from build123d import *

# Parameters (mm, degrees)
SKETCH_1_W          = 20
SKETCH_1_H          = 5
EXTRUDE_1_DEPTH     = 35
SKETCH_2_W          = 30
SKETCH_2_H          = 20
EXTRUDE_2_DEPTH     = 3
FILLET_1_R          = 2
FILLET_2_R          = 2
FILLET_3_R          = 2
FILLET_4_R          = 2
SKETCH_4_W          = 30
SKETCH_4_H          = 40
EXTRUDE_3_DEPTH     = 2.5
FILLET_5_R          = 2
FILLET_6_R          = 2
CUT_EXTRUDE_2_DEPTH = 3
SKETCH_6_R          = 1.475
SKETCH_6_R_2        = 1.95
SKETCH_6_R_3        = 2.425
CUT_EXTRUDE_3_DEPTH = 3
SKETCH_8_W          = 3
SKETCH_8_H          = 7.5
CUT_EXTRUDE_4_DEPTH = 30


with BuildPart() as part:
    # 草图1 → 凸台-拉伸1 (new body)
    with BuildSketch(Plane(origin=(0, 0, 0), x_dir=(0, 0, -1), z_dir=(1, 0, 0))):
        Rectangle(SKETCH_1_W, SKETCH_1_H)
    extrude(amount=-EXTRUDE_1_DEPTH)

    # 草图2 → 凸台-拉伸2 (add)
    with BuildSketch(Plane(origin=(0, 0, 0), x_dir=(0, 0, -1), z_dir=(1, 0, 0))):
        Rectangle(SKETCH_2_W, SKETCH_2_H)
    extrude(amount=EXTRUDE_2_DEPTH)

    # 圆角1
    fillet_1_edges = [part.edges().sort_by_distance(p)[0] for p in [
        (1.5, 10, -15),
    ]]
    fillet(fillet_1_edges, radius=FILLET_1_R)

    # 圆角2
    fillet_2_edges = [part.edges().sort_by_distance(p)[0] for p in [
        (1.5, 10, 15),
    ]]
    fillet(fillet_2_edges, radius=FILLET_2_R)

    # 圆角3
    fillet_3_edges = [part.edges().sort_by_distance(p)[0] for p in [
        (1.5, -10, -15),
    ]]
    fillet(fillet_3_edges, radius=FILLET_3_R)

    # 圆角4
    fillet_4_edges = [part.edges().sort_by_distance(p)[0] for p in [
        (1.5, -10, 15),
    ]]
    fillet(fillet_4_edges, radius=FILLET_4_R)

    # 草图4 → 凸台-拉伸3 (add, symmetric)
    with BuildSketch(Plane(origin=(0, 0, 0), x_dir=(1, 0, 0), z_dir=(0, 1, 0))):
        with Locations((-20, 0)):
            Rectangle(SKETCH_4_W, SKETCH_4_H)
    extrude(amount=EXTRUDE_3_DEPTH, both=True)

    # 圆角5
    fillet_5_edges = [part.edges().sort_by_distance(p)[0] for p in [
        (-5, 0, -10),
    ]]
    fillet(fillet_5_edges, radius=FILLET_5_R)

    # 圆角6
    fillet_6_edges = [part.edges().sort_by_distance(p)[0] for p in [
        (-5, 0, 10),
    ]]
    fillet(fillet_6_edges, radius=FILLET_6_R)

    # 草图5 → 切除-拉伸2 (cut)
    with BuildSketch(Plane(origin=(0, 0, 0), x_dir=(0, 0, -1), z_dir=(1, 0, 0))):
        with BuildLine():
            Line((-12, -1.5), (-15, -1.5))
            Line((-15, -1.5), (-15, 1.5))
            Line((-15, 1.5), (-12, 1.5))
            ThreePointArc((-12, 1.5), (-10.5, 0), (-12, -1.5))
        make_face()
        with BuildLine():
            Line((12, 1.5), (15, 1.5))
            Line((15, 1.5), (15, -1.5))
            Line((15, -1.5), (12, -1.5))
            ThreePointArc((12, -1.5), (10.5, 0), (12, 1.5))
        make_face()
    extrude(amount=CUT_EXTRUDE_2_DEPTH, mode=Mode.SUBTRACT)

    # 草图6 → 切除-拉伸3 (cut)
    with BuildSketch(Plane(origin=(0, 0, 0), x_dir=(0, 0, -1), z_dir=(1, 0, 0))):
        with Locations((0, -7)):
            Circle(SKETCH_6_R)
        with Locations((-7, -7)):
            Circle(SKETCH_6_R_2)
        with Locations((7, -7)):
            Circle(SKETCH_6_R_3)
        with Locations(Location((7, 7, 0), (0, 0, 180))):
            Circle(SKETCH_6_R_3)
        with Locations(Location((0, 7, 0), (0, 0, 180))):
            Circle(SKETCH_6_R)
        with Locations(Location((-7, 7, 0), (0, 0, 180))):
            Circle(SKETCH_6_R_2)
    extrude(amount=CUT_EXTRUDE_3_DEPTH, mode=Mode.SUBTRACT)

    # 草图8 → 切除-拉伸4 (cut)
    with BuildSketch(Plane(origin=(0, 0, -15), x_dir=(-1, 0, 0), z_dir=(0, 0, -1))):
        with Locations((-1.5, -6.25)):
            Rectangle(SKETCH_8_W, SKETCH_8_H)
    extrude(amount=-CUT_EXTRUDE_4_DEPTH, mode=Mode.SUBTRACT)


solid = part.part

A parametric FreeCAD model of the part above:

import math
import FreeCAD as App
import Part
import Sketcher

V = App.Vector


def edges_at(feature, points):
    """Names of the edges that pass closest to the given points."""
    edges = feature.Shape.Edges
    near = lambda p: min(range(len(edges)), key=lambda i: edges[i].distToShape(Part.Vertex(*p))[0])
    return sorted({f"Edge{near(p) + 1}" for p in points})

doc = App.newDocument("Part")
params = doc.addObject("Spreadsheet::Sheet", "Params")
for row, (alias, value) in enumerate([
    ("sketch1_width", "5 mm"),
    ("sketch1_height", "20 mm"),
    ("pad1_length", "35 mm"),
    ("sketch2_width", "20 mm"),
    ("sketch2_height", "30 mm"),
    ("pad2_length", "3 mm"),
    ("fillet_radius", "2 mm"),
    ("fillet2_radius", "2 mm"),
    ("fillet3_radius", "2 mm"),
    ("fillet4_radius", "2 mm"),
    ("sketch3_width", "30 mm"),
    ("sketch3_height", "40 mm"),
    ("pad3_length", "5 mm"),
    ("fillet5_radius", "2 mm"),
    ("fillet6_radius", "2 mm"),
    ("sketch4_radius", "1.5 mm"),
    ("pocket1_length", "3 mm"),
    ("sketch5_diameter", "3.9 mm"),
    ("sketch5_diameter2", "2.95 mm"),
    ("sketch5_diameter3", "4.85 mm"),
    ("pocket2_length", "3 mm"),
    ("sketch6_width", "3 mm"),
    ("sketch6_height", "7.5 mm"),
    ("pocket3_length", "30 mm"),
], start=1):
    params.set(f"A{row}", alias)
    params.set(f"B{row}", "=" + value)
    params.setAlias(f"B{row}", alias)

body = doc.addObject("PartDesign::Body", "Body")

# Sketch on YZ plane
sketch1 = doc.addObject("Sketcher::SketchObject", "Sketch")
body.addObject(sketch1)
sketch1.AttachmentSupport = (doc.YZ_Plane, [""])
sketch1.MapMode = "FlatFace"
sketch1.addGeometry([
    Part.LineSegment(V(2, 10, 0), V(-2, 10, 0)),
    Part.LineSegment(V(-2, 10, 0), V(-2, -10, 0)),
    Part.LineSegment(V(-2, -10, 0), V(2, -10, 0)),
    Part.LineSegment(V(2, -10, 0), V(2, 10, 0)),
], False)
sketch1.addConstraint([
    Sketcher.Constraint("Coincident", 0, 2, 1, 1),
    Sketcher.Constraint("Coincident", 1, 2, 2, 1),
    Sketcher.Constraint("Coincident", 2, 2, 3, 1),
    Sketcher.Constraint("Coincident", 3, 2, 0, 1),
    Sketcher.Constraint("Horizontal", 0),
    Sketcher.Constraint("Vertical", 1),
    Sketcher.Constraint("Horizontal", 2),
    Sketcher.Constraint("Vertical", 3),
    Sketcher.Constraint("Symmetric", 0, 2, 2, 2, -1, 1),
    Sketcher.Constraint("DistanceX", 0, 2, 0, 1, 5.0),
    Sketcher.Constraint("DistanceY", 1, 2, 1, 1, 20.0),
])
sketch1.setExpression("Constraints[9]", "Params.sketch1_width")
sketch1.setExpression("Constraints[10]", "Params.sketch1_height")
pad1 = doc.addObject("PartDesign::Pad", "Pad")
body.addObject(pad1)
pad1.Profile = sketch1
pad1.setExpression("Length", "Params.pad1_length")
pad1.Reversed = True

# Sketch on YZ plane
sketch2 = doc.addObject("Sketcher::SketchObject", "Sketch001")
body.addObject(sketch2)
sketch2.AttachmentSupport = (doc.YZ_Plane, [""])
sketch2.MapMode = "FlatFace"
sketch2.addGeometry([
    Part.LineSegment(V(10, 15, 0), V(-10, 15, 0)),
    Part.LineSegment(V(-10, 15, 0), V(-10, -15, 0)),
    Part.LineSegment(V(-10, -15, 0), V(10, -15, 0)),
    Part.LineSegment(V(10, -15, 0), V(10, 15, 0)),
], False)
sketch2.addConstraint([
    Sketcher.Constraint("Coincident", 0, 2, 1, 1),
    Sketcher.Constraint("Coincident", 1, 2, 2, 1),
    Sketcher.Constraint("Coincident", 2, 2, 3, 1),
    Sketcher.Constraint("Coincident", 3, 2, 0, 1),
    Sketcher.Constraint("Horizontal", 0),
    Sketcher.Constraint("Vertical", 1),
    Sketcher.Constraint("Horizontal", 2),
    Sketcher.Constraint("Vertical", 3),
    Sketcher.Constraint("Symmetric", 0, 2, 2, 2, -1, 1),
    Sketcher.Constraint("DistanceX", 0, 2, 0, 1, 20.0),
    Sketcher.Constraint("DistanceY", 1, 2, 1, 1, 30.0),
])
sketch2.setExpression("Constraints[9]", "Params.sketch2_width")
sketch2.setExpression("Constraints[10]", "Params.sketch2_height")
pad2 = doc.addObject("PartDesign::Pad", "Pad001")
body.addObject(pad2)
pad2.Profile = sketch2
pad2.setExpression("Length", "Params.pad2_length")
doc.recompute()

fillet = doc.addObject("PartDesign::Fillet", "Fillet")
body.addObject(fillet)
fillet.Base = (pad2, edges_at(pad2, [(1.5, 10, -15)]))
fillet.setExpression("Radius", "Params.fillet_radius")
doc.recompute()

fillet2 = doc.addObject("PartDesign::Fillet", "Fillet001")
body.addObject(fillet2)
fillet2.Base = (fillet, edges_at(fillet, [(1.5, 10, 15)]))
fillet2.setExpression("Radius", "Params.fillet2_radius")
doc.recompute()

fillet3 = doc.addObject("PartDesign::Fillet", "Fillet002")
body.addObject(fillet3)
fillet3.Base = (fillet2, edges_at(fillet2, [(1.5, -10, -15)]))
fillet3.setExpression("Radius", "Params.fillet3_radius")
doc.recompute()

fillet4 = doc.addObject("PartDesign::Fillet", "Fillet003")
body.addObject(fillet4)
fillet4.Base = (fillet3, edges_at(fillet3, [(1.5, -10, 15)]))
fillet4.setExpression("Radius", "Params.fillet4_radius")

# Sketch on XZ plane
sketch3 = doc.addObject("Sketcher::SketchObject", "Sketch002")
body.addObject(sketch3)
sketch3.AttachmentSupport = (doc.XZ_Plane, [""])
sketch3.MapMode = "FlatFace"
sketch3.addGeometry([
    Part.LineSegment(V(-35, -20, 0), V(-35, 20, 0)),
    Part.LineSegment(V(-35, 20, 0), V(-5, 20, 0)),
    Part.LineSegment(V(-5, 20, 0), V(-5, -20, 0)),
    Part.LineSegment(V(-5, -20, 0), V(-35, -20, 0)),
], False)
sketch3.addConstraint([
    Sketcher.Constraint("Coincident", 0, 2, 1, 1),
    Sketcher.Constraint("Coincident", 1, 2, 2, 1),
    Sketcher.Constraint("Coincident", 2, 2, 3, 1),
    Sketcher.Constraint("Coincident", 3, 2, 0, 1),
    Sketcher.Constraint("Vertical", 0),
    Sketcher.Constraint("Horizontal", 1),
    Sketcher.Constraint("Vertical", 2),
    Sketcher.Constraint("Horizontal", 3),
    Sketcher.Constraint("DistanceX", 1, 1, 1, 2, 30.0),
    Sketcher.Constraint("DistanceY", 0, 1, 0, 2, 40.0),
    Sketcher.Constraint("DistanceX", 0, 2, -1, 1, 35.0),
    Sketcher.Constraint("DistanceY", -1, 1, 0, 2, 20.0),
])
sketch3.setExpression("Constraints[8]", "Params.sketch3_width")
sketch3.setExpression("Constraints[9]", "Params.sketch3_height")
pad3 = doc.addObject("PartDesign::Pad", "Pad002")
body.addObject(pad3)
pad3.Profile = sketch3
pad3.setExpression("Length", "Params.pad3_length")
pad3.Midplane = True
doc.recompute()

fillet5 = doc.addObject("PartDesign::Fillet", "Fillet004")
body.addObject(fillet5)
fillet5.Base = (pad3, edges_at(pad3, [(-5, 0, -10)]))
fillet5.setExpression("Radius", "Params.fillet5_radius")
doc.recompute()

fillet6 = doc.addObject("PartDesign::Fillet", "Fillet005")
body.addObject(fillet6)
fillet6.Base = (fillet5, edges_at(fillet5, [(-5, 0, 10)]))
fillet6.setExpression("Radius", "Params.fillet6_radius")

# Sketch on YZ plane
sketch4 = doc.addObject("Sketcher::SketchObject", "Sketch003")
body.addObject(sketch4)
sketch4.AttachmentSupport = (doc.YZ_Plane, [""])
sketch4.MapMode = "FlatFace"
sketch4.addGeometry([
    Part.LineSegment(V(-1.5, 15, 0), V(-1.5, 12, 0)),  # 0
    Part.ArcOfCircle(Part.Circle(V(0, 12, 0), V(0, 0, 1), 1.5), math.radians(180), math.radians(360)),  # 1
    Part.LineSegment(V(1.5, 12, 0), V(1.5, 15, 0)),  # 2
    Part.LineSegment(V(1.5, 15, 0), V(-1.5, 15, 0)),  # 3
    Part.LineSegment(V(1.5, -15, 0), V(1.5, -12, 0)),  # 4
    Part.ArcOfCircle(Part.Circle(V(0, -12, 0), V(0, 0, 1), 1.5), math.radians(0), math.radians(180)),  # 5
    Part.LineSegment(V(-1.5, -12, 0), V(-1.5, -15, 0)),  # 6
    Part.LineSegment(V(-1.5, -15, 0), V(1.5, -15, 0)),  # 7
], False)
sketch4.addConstraint([
    Sketcher.Constraint("Tangent", 0, 2, 1, 1),
    Sketcher.Constraint("Tangent", 1, 2, 2, 1),
    Sketcher.Constraint("Coincident", 2, 2, 3, 1),
    Sketcher.Constraint("Coincident", 3, 2, 0, 1),
    Sketcher.Constraint("Tangent", 4, 2, 5, 1),
    Sketcher.Constraint("Tangent", 5, 2, 6, 1),
    Sketcher.Constraint("Coincident", 6, 2, 7, 1),
    Sketcher.Constraint("Coincident", 7, 2, 4, 1),
    Sketcher.Constraint("Vertical", 0),
    Sketcher.Constraint("Vertical", 2),
    Sketcher.Constraint("Horizontal", 3),
    Sketcher.Constraint("Vertical", 4),
    Sketcher.Constraint("Vertical", 6),
    Sketcher.Constraint("Horizontal", 7),
    Sketcher.Constraint("Equal", 1, 5),
    Sketcher.Constraint("Symmetric", 1, 3, 5, 3, -1, 1),
    Sketcher.Constraint("Symmetric", 3, 2, 6, 2, -1),
    Sketcher.Constraint("Equal", 7, 0),
    Sketcher.Constraint("Radius", 1, 1.5),
    Sketcher.Constraint("DistanceY", -1, 1, 1, 3, 12.0),
])
sketch4.setExpression("Constraints[18]", "Params.sketch4_radius")
pocket1 = doc.addObject("PartDesign::Pocket", "Pocket")
body.addObject(pocket1)
pocket1.Profile = sketch4
pocket1.setExpression("Length", "Params.pocket1_length")
pocket1.Reversed = True

# Sketch on YZ plane
sketch5 = doc.addObject("Sketcher::SketchObject", "Sketch004")
body.addObject(sketch5)
sketch5.AttachmentSupport = (doc.YZ_Plane, [""])
sketch5.MapMode = "FlatFace"
sketch5.addGeometry([
    Part.Circle(V(-7, 0, 0), V(0, 0, 1), 1.5),  # 0
    Part.Circle(V(-7, 7, 0), V(0, 0, 1), 1.9),  # 1
    Part.Circle(V(-7, -7, 0), V(0, 0, 1), 2.4),  # 2
    Part.Circle(V(7, -7, 0), V(0, 0, 1), 2.4),  # 3
    Part.Circle(V(7, 0, 0), V(0, 0, 1), 1.5),  # 4
    Part.Circle(V(7, 7, 0), V(0, 0, 1), 1.9),  # 5
], False)
sketch5.addConstraint([
    Sketcher.Constraint("Equal", 2, 3),
    Sketcher.Constraint("Equal", 0, 4),
    Sketcher.Constraint("Equal", 1, 5),
    Sketcher.Constraint("Symmetric", 1, 3, 3, 3, -1, 1),
    Sketcher.Constraint("Symmetric", 0, 3, 4, 3, -1, 1),
    Sketcher.Constraint("Symmetric", 2, 3, 5, 3, -1, 1),
    Sketcher.Constraint("Symmetric", 2, 3, 3, 3, -2),
    Sketcher.Constraint("PointOnObject", 0, 3, -1),
    Sketcher.Constraint("Vertical", 0, 3, 1, 3),
    Sketcher.Constraint("Diameter", 1, 3.9),
    Sketcher.Constraint("Diameter", 0, 2.95),
    Sketcher.Constraint("Diameter", 2, 4.85),
    Sketcher.Constraint("DistanceX", 0, 3, -1, 1, 7.0),
    Sketcher.Constraint("DistanceY", -1, 1, 1, 3, 7.0),
])
sketch5.setExpression("Constraints[9]", "Params.sketch5_diameter")
sketch5.setExpression("Constraints[10]", "Params.sketch5_diameter2")
sketch5.setExpression("Constraints[11]", "Params.sketch5_diameter3")
pocket2 = doc.addObject("PartDesign::Pocket", "Pocket001")
body.addObject(pocket2)
pocket2.Profile = sketch5
pocket2.setExpression("Length", "Params.pocket2_length")
pocket2.Reversed = True

# Sketch on XY plane
sketch6 = doc.addObject("Sketcher::SketchObject", "Sketch005")
body.addObject(sketch6)
sketch6.AttachmentSupport = (doc.XY_Plane, [""])
sketch6.MapMode = "FlatFace"
sketch6.AttachmentOffset = App.Placement(V(0, 0, -15), App.Rotation())
sketch6.addGeometry([
    Part.LineSegment(V(3, -2.5, 0), V(3, -10, 0)),
    Part.LineSegment(V(3, -10, 0), V(0, -10, 0)),
    Part.LineSegment(V(0, -10, 0), V(0, -2.5, 0)),
    Part.LineSegment(V(0, -2.5, 0), V(3, -2.5, 0)),
], False)
sketch6.addConstraint([
    Sketcher.Constraint("Coincident", 0, 2, 1, 1),
    Sketcher.Constraint("Coincident", 1, 2, 2, 1),
    Sketcher.Constraint("Coincident", 2, 2, 3, 1),
    Sketcher.Constraint("Coincident", 3, 2, 0, 1),
    Sketcher.Constraint("Vertical", 0),
    Sketcher.Constraint("Horizontal", 1),
    Sketcher.Constraint("Vertical", 2),
    Sketcher.Constraint("Horizontal", 3),
    Sketcher.Constraint("PointOnObject", 1, 2, -2),
    Sketcher.Constraint("DistanceX", 1, 2, 1, 1, 3.0),
    Sketcher.Constraint("DistanceY", 0, 2, 0, 1, 7.5),
    Sketcher.Constraint("DistanceY", 0, 2, -1, 1, 10.0),
])
sketch6.setExpression("Constraints[9]", "Params.sketch6_width")
sketch6.setExpression("Constraints[10]", "Params.sketch6_height")
pocket3 = doc.addObject("PartDesign::Pocket", "Pocket002")
body.addObject(pocket3)
pocket3.Profile = sketch6
pocket3.setExpression("Length", "Params.pocket3_length")
pocket3.Reversed = True

doc.recompute()
